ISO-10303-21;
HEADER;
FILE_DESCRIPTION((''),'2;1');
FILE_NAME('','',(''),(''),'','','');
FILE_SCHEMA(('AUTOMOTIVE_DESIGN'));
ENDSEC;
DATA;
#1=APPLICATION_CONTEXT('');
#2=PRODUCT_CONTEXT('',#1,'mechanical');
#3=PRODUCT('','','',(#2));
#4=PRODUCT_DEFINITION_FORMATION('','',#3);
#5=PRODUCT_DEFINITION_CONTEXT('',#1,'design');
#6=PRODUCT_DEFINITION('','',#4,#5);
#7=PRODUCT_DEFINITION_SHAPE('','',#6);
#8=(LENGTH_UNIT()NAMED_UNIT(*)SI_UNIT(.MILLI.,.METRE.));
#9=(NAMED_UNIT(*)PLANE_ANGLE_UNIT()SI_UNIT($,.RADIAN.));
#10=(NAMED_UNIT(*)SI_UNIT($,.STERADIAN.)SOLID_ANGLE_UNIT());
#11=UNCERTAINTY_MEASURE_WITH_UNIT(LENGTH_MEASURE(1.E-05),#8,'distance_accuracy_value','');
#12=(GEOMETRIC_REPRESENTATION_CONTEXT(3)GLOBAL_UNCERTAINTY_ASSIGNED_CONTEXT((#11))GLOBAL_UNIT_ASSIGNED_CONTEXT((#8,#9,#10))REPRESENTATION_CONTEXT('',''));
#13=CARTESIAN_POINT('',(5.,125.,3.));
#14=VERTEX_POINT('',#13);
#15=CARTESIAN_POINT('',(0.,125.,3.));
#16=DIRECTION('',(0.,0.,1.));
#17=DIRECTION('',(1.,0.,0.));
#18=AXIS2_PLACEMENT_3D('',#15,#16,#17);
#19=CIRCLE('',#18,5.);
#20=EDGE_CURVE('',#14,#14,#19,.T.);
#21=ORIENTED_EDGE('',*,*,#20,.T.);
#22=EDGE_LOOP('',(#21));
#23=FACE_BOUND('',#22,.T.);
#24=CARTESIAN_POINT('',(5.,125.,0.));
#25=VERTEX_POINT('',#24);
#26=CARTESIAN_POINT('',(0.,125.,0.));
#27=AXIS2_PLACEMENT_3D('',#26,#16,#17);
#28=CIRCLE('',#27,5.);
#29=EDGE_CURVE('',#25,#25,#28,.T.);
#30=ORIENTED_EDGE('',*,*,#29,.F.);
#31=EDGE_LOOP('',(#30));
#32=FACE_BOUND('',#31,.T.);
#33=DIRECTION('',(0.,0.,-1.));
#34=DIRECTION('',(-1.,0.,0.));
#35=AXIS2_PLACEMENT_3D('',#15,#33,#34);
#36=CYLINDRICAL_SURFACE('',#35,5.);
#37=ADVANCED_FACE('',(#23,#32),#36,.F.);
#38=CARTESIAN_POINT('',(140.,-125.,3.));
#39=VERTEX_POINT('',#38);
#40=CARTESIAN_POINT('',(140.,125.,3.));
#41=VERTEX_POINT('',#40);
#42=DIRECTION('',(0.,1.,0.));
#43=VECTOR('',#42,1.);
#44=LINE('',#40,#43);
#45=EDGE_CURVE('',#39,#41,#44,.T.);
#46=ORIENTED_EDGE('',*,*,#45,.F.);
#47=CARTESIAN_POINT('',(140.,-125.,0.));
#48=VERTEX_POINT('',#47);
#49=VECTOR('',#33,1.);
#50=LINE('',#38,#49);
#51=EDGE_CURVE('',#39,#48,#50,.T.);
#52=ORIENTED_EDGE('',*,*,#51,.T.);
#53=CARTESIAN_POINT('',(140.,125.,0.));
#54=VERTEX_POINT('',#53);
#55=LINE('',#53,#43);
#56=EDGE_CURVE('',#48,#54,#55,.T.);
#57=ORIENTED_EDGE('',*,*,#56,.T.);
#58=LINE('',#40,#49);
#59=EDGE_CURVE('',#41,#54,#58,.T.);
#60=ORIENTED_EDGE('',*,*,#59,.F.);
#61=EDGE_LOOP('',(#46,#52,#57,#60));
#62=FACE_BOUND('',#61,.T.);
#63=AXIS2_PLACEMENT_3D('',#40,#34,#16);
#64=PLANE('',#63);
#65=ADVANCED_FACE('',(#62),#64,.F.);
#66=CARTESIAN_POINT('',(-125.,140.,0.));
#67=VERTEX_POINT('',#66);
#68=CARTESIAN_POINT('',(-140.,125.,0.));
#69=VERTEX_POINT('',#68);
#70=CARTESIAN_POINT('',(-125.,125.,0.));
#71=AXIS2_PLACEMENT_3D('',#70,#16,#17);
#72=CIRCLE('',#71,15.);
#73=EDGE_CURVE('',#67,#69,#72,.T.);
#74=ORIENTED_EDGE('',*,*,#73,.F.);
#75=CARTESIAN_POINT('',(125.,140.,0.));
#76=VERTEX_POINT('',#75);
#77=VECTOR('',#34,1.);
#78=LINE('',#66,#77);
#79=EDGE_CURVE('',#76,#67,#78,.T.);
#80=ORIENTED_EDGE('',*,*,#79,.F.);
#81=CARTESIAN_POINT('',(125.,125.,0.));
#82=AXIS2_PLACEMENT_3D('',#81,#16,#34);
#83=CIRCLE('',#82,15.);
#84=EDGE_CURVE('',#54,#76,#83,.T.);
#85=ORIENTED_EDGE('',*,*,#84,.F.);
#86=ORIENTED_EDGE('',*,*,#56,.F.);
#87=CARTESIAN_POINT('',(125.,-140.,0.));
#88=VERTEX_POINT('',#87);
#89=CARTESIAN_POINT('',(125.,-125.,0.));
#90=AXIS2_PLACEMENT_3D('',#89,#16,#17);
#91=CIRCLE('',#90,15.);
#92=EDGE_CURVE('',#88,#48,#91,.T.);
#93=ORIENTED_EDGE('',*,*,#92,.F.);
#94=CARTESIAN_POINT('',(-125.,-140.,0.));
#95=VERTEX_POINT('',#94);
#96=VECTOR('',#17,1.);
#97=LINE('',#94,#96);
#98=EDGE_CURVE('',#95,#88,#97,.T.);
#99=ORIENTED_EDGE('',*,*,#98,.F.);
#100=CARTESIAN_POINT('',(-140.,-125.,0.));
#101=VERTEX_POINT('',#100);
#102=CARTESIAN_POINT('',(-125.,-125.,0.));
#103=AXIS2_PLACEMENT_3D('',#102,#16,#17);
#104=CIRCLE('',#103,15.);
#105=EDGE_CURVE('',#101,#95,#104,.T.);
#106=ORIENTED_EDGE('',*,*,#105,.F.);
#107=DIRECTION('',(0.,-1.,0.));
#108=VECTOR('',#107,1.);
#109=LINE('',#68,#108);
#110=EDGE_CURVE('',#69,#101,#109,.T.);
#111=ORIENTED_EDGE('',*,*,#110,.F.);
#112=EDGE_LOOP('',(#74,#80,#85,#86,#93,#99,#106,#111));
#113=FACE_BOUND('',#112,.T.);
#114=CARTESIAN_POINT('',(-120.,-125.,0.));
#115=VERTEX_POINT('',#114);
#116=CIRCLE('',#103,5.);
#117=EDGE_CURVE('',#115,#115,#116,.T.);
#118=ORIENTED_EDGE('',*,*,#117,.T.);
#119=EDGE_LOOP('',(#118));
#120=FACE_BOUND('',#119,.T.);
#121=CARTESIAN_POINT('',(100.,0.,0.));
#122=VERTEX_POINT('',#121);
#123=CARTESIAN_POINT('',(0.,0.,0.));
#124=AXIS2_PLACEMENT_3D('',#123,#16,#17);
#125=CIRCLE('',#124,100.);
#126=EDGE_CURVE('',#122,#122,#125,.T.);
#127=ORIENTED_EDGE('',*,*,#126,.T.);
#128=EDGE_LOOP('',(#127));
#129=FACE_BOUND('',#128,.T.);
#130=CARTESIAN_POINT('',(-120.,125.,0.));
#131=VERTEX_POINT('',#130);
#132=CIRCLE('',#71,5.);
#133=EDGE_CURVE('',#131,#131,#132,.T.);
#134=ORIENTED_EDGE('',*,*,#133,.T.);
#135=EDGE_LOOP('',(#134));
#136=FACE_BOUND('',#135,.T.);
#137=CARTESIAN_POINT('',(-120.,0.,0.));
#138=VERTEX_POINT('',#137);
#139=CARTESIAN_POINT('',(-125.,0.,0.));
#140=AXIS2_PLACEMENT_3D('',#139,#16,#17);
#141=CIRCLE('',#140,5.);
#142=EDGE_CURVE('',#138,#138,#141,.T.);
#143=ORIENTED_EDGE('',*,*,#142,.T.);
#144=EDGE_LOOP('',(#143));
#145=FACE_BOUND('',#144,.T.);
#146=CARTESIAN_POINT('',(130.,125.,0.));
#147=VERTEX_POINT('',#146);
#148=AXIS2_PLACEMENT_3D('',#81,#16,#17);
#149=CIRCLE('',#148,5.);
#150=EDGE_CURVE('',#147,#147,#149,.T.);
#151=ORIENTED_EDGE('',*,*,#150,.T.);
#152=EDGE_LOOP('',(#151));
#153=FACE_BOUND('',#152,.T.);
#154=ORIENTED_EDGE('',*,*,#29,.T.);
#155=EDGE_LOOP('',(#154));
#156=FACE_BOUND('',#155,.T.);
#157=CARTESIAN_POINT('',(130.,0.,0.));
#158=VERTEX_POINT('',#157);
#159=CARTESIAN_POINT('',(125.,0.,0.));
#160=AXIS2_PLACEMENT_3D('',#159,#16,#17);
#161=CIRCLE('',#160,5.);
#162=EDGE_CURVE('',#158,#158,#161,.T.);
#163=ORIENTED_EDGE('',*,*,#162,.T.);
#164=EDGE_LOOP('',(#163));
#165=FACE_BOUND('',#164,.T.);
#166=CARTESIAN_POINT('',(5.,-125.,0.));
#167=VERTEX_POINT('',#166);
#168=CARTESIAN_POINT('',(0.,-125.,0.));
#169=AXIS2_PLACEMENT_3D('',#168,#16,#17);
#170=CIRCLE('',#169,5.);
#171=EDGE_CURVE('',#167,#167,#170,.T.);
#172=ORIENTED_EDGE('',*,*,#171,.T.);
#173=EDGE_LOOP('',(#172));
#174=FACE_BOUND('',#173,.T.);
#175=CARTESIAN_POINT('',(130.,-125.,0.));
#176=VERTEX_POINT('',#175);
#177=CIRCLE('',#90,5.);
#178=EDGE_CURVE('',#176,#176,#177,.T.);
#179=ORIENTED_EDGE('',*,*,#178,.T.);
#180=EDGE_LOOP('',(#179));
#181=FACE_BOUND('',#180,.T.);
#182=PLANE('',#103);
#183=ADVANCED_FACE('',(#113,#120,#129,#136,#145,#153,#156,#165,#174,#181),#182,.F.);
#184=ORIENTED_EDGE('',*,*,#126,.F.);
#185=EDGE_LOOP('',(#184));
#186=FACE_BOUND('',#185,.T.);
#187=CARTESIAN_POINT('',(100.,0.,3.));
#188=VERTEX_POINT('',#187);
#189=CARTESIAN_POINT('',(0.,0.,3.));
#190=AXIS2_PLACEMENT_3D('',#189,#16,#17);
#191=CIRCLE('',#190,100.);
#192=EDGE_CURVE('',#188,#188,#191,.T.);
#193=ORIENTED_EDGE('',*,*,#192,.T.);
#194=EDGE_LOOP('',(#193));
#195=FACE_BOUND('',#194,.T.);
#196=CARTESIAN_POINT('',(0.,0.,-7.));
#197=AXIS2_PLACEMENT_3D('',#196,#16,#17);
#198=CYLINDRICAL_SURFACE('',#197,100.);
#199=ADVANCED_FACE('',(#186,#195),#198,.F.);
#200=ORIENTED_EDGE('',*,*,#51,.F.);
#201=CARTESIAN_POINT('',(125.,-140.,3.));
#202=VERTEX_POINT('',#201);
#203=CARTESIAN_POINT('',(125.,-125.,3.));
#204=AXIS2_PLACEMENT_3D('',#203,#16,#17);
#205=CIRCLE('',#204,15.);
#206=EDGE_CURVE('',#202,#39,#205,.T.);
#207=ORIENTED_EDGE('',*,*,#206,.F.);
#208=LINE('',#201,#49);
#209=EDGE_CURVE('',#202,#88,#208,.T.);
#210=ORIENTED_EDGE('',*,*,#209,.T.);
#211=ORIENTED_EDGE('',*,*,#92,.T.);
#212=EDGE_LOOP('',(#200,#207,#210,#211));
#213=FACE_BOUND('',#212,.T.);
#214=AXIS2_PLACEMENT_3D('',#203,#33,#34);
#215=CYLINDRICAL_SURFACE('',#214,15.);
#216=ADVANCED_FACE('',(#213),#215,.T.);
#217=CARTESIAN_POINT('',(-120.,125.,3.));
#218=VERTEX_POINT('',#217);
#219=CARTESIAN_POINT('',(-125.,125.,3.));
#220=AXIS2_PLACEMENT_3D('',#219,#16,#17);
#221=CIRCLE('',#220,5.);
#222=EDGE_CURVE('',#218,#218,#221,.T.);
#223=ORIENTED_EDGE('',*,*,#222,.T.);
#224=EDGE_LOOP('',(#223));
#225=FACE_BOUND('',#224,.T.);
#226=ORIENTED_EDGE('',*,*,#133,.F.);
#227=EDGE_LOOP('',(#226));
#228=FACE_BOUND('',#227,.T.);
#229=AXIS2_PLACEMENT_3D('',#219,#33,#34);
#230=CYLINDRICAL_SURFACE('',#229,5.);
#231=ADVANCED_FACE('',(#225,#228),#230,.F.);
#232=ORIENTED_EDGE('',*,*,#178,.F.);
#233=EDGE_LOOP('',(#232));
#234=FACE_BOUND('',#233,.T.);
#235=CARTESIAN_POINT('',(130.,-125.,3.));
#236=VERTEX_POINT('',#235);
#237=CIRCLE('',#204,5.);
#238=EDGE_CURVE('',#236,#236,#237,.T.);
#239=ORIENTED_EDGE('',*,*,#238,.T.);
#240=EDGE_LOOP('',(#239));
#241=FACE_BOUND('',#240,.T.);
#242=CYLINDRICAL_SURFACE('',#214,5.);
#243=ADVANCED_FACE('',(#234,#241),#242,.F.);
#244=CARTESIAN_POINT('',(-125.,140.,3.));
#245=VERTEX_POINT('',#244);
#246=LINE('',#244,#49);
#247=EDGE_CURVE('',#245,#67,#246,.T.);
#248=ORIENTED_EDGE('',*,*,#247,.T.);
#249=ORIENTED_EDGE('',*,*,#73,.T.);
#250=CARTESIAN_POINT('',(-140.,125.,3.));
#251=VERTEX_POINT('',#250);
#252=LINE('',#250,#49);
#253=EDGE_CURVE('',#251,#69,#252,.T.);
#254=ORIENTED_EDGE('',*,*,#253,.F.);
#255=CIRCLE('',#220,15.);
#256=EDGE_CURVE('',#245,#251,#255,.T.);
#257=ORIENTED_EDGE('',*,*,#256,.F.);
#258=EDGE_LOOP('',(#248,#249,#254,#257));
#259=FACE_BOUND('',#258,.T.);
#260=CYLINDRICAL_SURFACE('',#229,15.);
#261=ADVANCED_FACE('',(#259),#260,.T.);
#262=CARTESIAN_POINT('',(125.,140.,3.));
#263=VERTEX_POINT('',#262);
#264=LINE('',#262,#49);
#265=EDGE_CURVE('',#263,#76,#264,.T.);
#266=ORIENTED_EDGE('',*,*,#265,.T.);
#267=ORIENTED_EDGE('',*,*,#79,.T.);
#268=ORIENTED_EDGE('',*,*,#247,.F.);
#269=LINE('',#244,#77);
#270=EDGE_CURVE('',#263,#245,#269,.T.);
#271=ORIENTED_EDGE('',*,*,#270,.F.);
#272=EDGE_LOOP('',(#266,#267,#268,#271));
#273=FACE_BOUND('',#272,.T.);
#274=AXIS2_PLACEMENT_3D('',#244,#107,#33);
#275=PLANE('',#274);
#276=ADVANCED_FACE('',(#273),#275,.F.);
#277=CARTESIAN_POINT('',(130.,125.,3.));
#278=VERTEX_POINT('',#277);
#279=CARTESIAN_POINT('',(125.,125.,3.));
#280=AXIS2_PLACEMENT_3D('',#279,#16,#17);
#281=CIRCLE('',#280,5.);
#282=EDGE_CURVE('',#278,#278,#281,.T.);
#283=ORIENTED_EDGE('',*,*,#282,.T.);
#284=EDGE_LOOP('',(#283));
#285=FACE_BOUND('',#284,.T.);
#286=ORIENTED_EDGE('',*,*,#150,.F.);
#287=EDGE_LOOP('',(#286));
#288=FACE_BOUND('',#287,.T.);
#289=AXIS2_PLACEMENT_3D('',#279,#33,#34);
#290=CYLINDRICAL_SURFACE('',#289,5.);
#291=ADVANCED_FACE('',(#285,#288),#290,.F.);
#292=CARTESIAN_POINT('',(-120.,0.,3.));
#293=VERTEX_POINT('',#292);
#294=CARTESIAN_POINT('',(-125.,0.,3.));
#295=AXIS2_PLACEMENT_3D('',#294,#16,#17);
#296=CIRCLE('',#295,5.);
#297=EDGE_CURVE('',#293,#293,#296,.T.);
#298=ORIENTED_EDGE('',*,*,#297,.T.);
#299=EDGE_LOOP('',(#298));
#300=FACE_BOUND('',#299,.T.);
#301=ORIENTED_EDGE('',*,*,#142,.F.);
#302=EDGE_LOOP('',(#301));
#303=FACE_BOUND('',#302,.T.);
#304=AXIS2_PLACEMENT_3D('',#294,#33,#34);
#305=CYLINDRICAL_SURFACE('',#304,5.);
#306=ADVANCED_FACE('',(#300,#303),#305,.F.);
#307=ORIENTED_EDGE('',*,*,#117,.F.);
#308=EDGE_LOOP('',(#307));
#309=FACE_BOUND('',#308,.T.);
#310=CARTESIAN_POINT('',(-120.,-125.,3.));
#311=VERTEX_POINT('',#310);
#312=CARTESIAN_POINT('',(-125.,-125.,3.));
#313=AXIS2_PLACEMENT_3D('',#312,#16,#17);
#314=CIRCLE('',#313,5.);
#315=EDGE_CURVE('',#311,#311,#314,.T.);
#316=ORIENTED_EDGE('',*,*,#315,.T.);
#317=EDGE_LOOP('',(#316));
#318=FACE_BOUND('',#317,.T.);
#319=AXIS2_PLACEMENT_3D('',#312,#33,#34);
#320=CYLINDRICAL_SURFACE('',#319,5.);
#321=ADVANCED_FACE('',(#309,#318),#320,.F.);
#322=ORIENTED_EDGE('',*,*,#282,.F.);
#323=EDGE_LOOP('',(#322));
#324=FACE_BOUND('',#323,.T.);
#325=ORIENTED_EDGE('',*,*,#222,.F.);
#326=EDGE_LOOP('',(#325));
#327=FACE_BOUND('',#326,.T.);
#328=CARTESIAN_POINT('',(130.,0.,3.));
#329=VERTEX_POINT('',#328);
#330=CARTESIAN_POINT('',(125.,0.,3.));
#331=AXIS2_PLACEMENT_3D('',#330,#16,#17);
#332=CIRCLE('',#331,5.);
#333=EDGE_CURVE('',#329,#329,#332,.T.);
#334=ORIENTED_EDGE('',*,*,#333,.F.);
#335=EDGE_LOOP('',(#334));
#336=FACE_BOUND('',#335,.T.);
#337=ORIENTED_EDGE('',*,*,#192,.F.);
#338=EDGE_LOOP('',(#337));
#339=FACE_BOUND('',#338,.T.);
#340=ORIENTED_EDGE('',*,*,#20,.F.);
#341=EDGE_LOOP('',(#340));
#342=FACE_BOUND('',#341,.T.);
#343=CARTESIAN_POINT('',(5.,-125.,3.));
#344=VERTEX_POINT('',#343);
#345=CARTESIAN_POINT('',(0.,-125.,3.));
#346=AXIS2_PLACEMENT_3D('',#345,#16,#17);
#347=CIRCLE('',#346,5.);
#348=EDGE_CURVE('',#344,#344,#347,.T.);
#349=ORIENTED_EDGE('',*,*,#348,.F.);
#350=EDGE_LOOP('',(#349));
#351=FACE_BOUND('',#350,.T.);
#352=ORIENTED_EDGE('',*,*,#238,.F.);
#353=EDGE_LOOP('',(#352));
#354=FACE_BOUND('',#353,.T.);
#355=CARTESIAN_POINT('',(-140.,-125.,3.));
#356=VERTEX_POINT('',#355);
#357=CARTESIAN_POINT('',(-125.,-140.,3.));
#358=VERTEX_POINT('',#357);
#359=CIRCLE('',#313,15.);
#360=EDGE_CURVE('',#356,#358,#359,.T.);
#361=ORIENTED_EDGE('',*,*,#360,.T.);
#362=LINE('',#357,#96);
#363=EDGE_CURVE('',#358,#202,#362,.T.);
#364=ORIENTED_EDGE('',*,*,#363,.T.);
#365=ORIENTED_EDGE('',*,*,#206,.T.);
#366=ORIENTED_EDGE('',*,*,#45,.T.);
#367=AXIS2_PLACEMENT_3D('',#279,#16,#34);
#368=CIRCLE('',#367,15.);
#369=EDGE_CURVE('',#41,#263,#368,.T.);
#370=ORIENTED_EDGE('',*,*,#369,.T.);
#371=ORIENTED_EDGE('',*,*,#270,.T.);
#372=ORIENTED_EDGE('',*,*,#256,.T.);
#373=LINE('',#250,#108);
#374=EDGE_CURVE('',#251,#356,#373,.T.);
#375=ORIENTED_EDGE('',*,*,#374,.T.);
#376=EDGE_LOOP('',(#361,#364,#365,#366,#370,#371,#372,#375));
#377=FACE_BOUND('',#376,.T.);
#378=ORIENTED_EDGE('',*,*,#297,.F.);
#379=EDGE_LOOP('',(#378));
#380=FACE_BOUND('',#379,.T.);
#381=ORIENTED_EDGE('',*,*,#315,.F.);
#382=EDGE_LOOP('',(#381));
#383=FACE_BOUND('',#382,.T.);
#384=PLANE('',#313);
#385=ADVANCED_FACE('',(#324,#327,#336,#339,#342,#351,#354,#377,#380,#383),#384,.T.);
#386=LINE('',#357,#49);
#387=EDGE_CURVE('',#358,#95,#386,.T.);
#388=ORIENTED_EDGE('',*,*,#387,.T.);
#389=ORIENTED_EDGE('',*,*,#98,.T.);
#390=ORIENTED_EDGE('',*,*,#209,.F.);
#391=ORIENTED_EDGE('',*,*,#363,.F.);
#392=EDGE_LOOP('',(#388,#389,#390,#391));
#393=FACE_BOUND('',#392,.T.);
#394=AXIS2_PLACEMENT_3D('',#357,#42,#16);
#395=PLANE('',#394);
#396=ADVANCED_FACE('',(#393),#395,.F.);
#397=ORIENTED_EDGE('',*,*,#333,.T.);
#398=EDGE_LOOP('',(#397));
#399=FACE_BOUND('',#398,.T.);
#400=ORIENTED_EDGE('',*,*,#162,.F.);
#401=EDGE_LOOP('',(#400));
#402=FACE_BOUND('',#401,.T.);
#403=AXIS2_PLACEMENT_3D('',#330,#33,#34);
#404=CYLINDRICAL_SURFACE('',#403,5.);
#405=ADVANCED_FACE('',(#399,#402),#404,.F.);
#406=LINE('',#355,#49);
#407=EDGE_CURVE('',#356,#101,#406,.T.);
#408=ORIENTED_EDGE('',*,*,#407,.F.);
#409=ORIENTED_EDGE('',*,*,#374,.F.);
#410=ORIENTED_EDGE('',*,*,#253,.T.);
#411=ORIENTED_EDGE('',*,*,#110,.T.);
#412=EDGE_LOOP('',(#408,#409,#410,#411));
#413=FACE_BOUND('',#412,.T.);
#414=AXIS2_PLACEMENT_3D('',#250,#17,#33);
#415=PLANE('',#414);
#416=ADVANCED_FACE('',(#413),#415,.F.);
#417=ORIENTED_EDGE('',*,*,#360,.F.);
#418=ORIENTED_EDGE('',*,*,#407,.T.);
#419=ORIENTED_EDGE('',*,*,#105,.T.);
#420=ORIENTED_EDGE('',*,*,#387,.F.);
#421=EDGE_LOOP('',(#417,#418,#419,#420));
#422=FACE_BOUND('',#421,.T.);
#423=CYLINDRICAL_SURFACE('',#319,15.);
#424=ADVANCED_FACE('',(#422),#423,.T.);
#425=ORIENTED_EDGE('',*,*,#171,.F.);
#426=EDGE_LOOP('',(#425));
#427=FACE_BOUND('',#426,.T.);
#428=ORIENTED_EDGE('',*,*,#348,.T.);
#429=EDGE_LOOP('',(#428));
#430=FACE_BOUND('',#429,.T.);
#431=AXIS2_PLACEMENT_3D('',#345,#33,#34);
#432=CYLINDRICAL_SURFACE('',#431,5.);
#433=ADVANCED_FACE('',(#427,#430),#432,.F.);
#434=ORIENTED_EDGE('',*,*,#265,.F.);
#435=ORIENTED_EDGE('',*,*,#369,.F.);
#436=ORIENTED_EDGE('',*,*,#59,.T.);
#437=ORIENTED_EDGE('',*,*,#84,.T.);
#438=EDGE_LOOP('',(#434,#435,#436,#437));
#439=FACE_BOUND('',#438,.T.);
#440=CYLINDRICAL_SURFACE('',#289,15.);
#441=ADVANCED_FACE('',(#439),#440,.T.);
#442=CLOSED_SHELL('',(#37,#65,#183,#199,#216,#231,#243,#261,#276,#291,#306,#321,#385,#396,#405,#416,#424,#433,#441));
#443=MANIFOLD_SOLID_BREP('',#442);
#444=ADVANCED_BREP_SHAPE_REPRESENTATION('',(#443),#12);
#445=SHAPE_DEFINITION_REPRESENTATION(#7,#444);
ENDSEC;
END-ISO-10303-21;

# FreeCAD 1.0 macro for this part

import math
import FreeCAD as App
import Part
import Sketcher
from FreeCAD import Vector

doc = App.newDocument("Part")
body = doc.addObject("PartDesign::Body", "Body")

sketch1 = body.newObject("Sketcher::SketchObject", "Sketch")
sketch1.AttachmentSupport = (doc.getObject("XY_Plane"), [""])
sketch1.MapMode = "FlatFace"
sketch1.addGeometry([
    Part.LineSegment(Vector(125, 140, 0), Vector(-125, 140, 0)),
    Part.ArcOfCircle(Part.Circle(Vector(-125, 125, 0), Vector(0, 0, 1), 15), math.radians(90), math.radians(180)),
    Part.LineSegment(Vector(-140, 125, 0), Vector(-140, -125, 0)),
    Part.ArcOfCircle(Part.Circle(Vector(-125, -125, 0), Vector(0, 0, 1), 15), math.radians(180), math.radians(270)),
    Part.LineSegment(Vector(-125, -140, 0), Vector(125, -140, 0)),
    Part.ArcOfCircle(Part.Circle(Vector(125, -125, 0), Vector(0, 0, 1), 15), math.radians(-90), math.radians(0)),
    Part.LineSegment(Vector(140, -125, 0), Vector(140, 125, 0)),
    Part.ArcOfCircle(Part.Circle(Vector(125, 125, 0), Vector(0, 0, 1), 15), math.radians(0), math.radians(90)),
    Part.Circle(Vector(125, -125, 0), Vector(0, 0, 1), 5),
    Part.Circle(Vector(0, -125, 0), Vector(0, 0, 1), 5),
    Part.Circle(Vector(-125, -125, 0), Vector(0, 0, 1), 5),
    Part.Circle(Vector(125, 0, 0), Vector(0, 0, 1), 5),
    Part.Circle(Vector(125, 125, 0), Vector(0, 0, 1), 5),
    Part.Circle(Vector(0, 0, 0), Vector(0, 0, 1), 4),
    Part.Circle(Vector(-125, 0, 0), Vector(0, 0, 1), 5),
    Part.Circle(Vector(0, 125, 0), Vector(0, 0, 1), 5),
    Part.Circle(Vector(-125, 125, 0), Vector(0, 0, 1), 5),
], False)
sketch1.addConstraint([
    Sketcher.Constraint("Tangent", 0, 2, 1, 1),
    Sketcher.Constraint("Tangent", 1, 2, 2, 1),
    Sketcher.Constraint("Tangent", 2, 2, 3, 1),
    Sketcher.Constraint("Tangent", 3, 2, 4, 1),
    Sketcher.Constraint("Tangent", 4, 2, 5, 1),
    Sketcher.Constraint("Tangent", 5, 2, 6, 1),
    Sketcher.Constraint("Tangent", 6, 2, 7, 1),
    Sketcher.Constraint("Tangent", 7, 2, 0, 1),
    Sketcher.Constraint("Horizontal", 0),
    Sketcher.Constraint("Vertical", 2),
    Sketcher.Constraint("Horizontal", 4),
    Sketcher.Constraint("Vertical", 6),
    Sketcher.Constraint("Coincident", 13, 3, -1, 1),
    Sketcher.Constraint("Coincident", 8, 3, 5, 3),
    Sketcher.Constraint("Coincident", 10, 3, 3, 3),
    Sketcher.Constraint("Coincident", 12, 3, 7, 3),
    Sketcher.Constraint("Coincident", 16, 3, 1, 3),
    Sketcher.Constraint("Equal", 1, 3),
    Sketcher.Constraint("Equal", 3, 5),
    Sketcher.Constraint("Equal", 5, 7),
    Sketcher.Constraint("Equal", 8, 9),
    Sketcher.Constraint("Equal", 9, 10),
    Sketcher.Constraint("Equal", 10, 11),
    Sketcher.Constraint("Equal", 11, 12),
    Sketcher.Constraint("Equal", 12, 14),
    Sketcher.Constraint("Equal", 14, 15),
    Sketcher.Constraint("Equal", 15, 16),
    Sketcher.Constraint("Symmetric", 1, 3, 5, 3, -1, 1),
    Sketcher.Constraint("Symmetric", 11, 3, 14, 3, -1, 1),
    Sketcher.Constraint("Symmetric", 9, 3, 15, 3, -1, 1),
    Sketcher.Constraint("PointOnObject", 9, 3, -2),
    Sketcher.Constraint("PointOnObject", 11, 3, -1),
    Sketcher.Constraint("Horizontal", 8, 3, 9, 3),
    Sketcher.Constraint("Vertical", 8, 3, 11, 3),
    Sketcher.Constraint("Equal", 4, 2),
    Sketcher.Constraint("Diameter", 8, 10.0),
    Sketcher.Constraint("Diameter", 13, 8.0),
    Sketcher.Constraint("Radius", 1, 15.0),
    Sketcher.Constraint("DistanceX", 0, 2, 0, 1, 250.0),
])
pad1 = body.newObject("PartDesign::Pad", "Pad")
pad1.Profile = sketch1
pad1.Length = 3

sketch2 = body.newObject("Sketcher::SketchObject", "Sketch001")
sketch2.AttachmentSupport = (doc.getObject("XY_Plane"), [""])
sketch2.MapMode = "FlatFace"
sketch2.AttachmentOffset = App.Placement(Vector(0, 0, 3), App.Rotation())
sketch2.addGeometry(Part.Circle(Vector(0, 0, 0), Vector(0, 0, 1), 100), False)
sketch2.addConstraint([
    Sketcher.Constraint("Coincident", 0, 3, -1, 1),
    Sketcher.Constraint("Diameter", 0, 200.0),
])
pocket1 = body.newObject("PartDesign::Pocket", "Pocket")
pocket1.Profile = sketch2
pocket1.Length = 10

doc.recompute()
